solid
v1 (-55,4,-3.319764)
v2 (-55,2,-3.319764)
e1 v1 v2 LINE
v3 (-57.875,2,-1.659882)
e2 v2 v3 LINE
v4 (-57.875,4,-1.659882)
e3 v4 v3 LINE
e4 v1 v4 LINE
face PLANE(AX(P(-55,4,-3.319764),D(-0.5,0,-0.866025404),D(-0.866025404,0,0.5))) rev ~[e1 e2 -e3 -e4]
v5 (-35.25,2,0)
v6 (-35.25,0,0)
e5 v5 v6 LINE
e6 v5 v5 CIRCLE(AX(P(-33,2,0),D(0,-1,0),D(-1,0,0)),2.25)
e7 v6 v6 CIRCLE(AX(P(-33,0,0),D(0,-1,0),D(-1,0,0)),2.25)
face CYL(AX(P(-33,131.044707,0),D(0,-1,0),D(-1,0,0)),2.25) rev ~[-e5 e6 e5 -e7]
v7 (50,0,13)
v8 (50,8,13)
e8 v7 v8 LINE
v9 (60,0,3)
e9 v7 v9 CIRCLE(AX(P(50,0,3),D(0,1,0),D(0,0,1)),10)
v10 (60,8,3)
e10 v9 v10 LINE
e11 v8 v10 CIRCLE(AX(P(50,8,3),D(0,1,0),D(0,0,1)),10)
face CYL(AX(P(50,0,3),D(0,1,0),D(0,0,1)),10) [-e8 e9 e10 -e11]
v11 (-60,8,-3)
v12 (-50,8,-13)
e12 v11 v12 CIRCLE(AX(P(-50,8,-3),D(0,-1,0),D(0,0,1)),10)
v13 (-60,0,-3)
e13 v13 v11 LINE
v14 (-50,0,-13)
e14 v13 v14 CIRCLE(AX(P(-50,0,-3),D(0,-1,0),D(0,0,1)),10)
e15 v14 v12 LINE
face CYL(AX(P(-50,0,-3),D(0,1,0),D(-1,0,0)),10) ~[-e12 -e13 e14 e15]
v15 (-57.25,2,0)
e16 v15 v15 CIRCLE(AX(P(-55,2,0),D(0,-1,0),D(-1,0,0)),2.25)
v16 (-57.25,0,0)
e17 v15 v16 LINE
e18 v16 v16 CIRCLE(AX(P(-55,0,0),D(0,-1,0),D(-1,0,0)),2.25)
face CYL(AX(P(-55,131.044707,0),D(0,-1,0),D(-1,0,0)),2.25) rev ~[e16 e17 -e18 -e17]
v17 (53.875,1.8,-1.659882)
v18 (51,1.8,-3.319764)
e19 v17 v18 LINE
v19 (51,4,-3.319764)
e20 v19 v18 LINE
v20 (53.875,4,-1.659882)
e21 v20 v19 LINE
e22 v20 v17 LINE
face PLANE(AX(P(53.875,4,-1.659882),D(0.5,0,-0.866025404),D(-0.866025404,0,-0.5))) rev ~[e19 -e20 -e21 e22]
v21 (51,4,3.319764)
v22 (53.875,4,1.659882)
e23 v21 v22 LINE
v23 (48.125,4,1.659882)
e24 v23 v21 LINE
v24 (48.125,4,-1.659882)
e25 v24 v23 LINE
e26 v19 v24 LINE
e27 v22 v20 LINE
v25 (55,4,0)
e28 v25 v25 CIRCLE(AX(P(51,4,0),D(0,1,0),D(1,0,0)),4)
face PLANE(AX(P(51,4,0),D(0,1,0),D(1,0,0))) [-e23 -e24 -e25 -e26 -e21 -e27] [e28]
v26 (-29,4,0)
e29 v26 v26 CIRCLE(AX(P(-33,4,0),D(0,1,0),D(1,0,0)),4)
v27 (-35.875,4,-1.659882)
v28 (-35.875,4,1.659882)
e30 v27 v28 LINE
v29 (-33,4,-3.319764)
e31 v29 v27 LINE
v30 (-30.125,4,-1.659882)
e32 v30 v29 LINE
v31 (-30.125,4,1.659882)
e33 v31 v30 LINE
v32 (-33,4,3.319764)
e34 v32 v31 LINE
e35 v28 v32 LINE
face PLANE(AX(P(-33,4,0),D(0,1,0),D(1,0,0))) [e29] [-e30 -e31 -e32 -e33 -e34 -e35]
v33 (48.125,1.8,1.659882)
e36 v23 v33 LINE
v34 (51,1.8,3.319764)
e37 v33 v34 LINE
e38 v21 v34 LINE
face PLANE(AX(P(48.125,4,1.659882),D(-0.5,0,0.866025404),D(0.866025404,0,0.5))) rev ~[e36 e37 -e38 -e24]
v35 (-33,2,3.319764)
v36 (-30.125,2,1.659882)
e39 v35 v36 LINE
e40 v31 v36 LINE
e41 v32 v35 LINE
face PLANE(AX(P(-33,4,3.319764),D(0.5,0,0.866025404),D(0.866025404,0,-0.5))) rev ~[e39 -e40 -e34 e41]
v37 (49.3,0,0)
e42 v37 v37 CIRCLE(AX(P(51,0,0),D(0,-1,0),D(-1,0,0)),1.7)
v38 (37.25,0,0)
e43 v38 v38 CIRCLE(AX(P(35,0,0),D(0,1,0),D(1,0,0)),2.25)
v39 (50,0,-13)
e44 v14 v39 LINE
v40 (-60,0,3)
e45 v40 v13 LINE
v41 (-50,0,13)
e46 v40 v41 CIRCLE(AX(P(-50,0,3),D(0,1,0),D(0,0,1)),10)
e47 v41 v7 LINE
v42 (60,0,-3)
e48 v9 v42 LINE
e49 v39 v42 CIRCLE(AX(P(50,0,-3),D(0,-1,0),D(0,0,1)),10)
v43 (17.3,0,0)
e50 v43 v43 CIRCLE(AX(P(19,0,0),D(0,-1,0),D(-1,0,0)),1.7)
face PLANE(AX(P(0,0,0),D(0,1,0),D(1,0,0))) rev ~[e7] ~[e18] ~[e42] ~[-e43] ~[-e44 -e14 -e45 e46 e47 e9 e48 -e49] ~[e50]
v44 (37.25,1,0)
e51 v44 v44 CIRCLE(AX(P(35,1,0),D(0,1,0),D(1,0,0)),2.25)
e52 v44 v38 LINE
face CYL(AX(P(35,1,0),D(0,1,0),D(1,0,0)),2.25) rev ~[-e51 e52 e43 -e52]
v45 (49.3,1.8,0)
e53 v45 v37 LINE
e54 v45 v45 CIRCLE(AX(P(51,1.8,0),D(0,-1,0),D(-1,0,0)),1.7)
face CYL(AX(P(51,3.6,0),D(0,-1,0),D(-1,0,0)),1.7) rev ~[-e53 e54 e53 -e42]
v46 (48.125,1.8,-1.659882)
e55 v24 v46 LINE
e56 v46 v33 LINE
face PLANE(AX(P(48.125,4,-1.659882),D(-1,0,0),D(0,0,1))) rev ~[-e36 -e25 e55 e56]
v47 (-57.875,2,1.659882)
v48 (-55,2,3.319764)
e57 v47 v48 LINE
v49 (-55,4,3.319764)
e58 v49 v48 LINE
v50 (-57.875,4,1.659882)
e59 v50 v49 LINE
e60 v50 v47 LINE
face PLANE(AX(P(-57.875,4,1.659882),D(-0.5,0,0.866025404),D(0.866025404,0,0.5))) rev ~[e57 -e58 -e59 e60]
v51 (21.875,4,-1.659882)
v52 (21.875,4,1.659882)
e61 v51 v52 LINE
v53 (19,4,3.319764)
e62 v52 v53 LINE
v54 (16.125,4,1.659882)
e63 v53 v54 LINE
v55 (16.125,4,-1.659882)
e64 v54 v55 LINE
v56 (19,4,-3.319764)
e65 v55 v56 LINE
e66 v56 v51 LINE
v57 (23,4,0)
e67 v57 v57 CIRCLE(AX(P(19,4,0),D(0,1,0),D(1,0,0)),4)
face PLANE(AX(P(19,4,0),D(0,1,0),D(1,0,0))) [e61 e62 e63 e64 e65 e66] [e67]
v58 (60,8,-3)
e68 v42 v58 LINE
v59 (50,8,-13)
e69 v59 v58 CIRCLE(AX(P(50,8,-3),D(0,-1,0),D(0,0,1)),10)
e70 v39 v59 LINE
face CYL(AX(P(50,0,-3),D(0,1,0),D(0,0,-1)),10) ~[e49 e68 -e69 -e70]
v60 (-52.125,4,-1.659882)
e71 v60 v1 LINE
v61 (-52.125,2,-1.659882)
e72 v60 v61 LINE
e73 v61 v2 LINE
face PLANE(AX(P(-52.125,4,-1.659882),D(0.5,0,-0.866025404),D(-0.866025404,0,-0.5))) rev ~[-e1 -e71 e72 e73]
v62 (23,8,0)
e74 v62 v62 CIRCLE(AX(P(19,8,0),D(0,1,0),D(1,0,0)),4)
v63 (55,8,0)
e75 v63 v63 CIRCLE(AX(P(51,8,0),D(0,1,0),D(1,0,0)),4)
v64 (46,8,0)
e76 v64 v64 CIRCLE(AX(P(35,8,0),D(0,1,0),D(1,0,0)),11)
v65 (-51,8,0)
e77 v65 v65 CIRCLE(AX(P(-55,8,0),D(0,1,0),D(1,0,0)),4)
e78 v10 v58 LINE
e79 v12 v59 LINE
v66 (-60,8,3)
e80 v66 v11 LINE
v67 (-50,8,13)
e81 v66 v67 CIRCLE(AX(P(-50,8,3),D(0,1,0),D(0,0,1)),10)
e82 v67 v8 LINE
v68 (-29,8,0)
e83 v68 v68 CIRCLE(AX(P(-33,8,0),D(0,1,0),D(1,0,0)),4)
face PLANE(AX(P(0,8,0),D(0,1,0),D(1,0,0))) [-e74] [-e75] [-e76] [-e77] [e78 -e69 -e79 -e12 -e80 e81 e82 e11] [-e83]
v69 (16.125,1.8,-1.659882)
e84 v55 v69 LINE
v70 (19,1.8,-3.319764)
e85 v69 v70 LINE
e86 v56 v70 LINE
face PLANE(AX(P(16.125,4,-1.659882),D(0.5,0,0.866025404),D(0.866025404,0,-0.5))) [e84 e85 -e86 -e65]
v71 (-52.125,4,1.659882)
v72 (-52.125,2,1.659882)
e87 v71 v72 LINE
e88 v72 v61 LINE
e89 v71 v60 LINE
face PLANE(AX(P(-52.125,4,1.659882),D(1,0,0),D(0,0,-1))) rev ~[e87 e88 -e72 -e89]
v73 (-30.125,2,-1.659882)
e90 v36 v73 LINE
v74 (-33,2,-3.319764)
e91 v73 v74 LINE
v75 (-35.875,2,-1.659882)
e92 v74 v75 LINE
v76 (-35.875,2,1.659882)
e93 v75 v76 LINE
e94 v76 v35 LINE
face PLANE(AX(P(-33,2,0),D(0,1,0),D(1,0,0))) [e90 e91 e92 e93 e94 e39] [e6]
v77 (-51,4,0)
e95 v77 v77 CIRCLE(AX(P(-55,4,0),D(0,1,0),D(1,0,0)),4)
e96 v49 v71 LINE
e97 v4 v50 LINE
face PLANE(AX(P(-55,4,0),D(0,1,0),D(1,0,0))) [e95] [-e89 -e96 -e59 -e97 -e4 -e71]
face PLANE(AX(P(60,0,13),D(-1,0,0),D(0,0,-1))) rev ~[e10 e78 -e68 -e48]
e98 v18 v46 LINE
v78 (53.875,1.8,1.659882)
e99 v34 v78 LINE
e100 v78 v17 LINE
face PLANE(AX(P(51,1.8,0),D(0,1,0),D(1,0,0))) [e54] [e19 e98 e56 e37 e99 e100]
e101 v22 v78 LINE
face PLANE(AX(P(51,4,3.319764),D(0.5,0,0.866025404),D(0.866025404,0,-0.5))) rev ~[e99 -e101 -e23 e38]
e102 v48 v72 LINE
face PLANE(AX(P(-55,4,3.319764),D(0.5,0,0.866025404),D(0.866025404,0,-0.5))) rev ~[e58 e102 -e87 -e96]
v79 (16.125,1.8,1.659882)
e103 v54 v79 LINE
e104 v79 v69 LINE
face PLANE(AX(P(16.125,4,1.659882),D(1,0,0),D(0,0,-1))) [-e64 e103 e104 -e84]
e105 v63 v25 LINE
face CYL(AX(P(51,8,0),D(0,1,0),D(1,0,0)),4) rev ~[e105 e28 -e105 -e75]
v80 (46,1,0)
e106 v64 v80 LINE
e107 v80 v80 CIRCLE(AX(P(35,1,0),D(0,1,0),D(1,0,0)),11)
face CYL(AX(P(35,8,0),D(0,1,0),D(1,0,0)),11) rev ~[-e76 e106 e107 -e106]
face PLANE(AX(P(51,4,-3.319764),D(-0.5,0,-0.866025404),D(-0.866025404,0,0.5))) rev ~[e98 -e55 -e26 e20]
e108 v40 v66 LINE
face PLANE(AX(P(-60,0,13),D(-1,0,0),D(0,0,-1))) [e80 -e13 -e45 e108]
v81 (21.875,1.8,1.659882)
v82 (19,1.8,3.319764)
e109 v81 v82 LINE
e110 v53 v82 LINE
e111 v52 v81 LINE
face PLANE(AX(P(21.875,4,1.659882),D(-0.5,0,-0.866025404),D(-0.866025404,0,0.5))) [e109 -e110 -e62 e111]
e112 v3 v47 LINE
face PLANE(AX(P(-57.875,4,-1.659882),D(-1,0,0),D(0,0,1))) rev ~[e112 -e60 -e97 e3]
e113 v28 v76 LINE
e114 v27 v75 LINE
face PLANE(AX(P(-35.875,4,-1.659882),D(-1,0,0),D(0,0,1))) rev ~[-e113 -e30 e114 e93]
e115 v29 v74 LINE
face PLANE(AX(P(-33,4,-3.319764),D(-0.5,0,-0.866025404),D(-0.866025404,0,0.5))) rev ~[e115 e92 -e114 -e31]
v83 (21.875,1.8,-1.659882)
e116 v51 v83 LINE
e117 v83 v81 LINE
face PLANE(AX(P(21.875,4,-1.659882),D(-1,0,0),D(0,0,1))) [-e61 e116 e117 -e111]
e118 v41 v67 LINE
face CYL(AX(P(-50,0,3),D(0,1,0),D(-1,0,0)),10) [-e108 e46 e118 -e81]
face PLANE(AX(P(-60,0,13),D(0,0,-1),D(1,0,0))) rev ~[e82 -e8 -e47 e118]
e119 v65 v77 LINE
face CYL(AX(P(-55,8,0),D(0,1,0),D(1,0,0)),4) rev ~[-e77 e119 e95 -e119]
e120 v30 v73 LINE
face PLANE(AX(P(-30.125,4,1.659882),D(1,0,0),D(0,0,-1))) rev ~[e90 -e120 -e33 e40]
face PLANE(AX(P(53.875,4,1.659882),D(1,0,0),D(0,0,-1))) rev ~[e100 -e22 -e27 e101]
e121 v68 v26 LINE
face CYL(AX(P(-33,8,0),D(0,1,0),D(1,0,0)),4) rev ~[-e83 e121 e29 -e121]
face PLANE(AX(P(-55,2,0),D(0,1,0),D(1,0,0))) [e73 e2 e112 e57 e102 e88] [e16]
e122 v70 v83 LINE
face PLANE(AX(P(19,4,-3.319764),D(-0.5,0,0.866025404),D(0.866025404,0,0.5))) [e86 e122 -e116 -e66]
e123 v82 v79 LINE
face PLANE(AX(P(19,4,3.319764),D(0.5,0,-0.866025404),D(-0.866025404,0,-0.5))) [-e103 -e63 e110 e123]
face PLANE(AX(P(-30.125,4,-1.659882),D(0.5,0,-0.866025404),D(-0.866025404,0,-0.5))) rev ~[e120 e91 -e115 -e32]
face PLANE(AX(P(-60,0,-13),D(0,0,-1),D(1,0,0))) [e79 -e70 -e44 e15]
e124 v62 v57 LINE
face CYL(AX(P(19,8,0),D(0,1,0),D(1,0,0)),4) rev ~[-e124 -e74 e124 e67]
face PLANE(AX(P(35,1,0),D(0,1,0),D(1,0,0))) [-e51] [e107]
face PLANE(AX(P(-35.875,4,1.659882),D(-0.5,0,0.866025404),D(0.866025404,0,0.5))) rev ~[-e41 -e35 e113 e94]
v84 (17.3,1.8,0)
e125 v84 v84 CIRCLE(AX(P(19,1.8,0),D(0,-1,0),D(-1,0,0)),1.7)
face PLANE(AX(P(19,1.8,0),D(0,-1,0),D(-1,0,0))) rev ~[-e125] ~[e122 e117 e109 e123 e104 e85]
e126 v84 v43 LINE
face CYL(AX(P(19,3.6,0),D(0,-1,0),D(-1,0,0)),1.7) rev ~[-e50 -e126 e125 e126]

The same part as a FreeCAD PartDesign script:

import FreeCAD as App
import Part
import Sketcher
from FreeCAD import Vector
Q = App.Units.Quantity


def edges_at(feature, points):
    """Names of the edges that pass closest to the given points."""
    edges = feature.Shape.Edges
    near = lambda p: min(range(len(edges)), key=lambda i: edges[i].distToShape(Part.Vertex(*p))[0])
    return sorted({f"Edge{near(p) + 1}" for p in points})

doc = App.newDocument("Part")
body = doc.addObject("PartDesign::Body", "Body")

# Sketch on XZ plane
sketch1 = body.newObject("Sketcher::SketchObject", "Sketch")
sketch1.AttachmentSupport = (doc.getObject("XZ_Plane"), [""])
sketch1.MapMode = "FlatFace"
sketch1.addGeometry([
    Part.LineSegment(Vector(-60, -13, 0), Vector(-60, 13, 0)),
    Part.LineSegment(Vector(-60, 13, 0), Vector(60, 13, 0)),
    Part.LineSegment(Vector(60, 13, 0), Vector(60, -13, 0)),
    Part.LineSegment(Vector(60, -13, 0), Vector(-60, -13, 0)),
], False)
sketch1.addConstraint([
    Sketcher.Constraint("Coincident", 0, 2, 1, 1),
    Sketcher.Constraint("Coincident", 1, 2, 2, 1),
    Sketcher.Constraint("Coincident", 2, 2, 3, 1),
    Sketcher.Constraint("Coincident", 3, 2, 0, 1),
    Sketcher.Constraint("Vertical", 0),
    Sketcher.Constraint("Horizontal", 1),
    Sketcher.Constraint("Vertical", 2),
    Sketcher.Constraint("Horizontal", 3),
    Sketcher.Constraint("Symmetric", 0, 2, 2, 2, -1, 1),
    Sketcher.Constraint("DistanceX", 1, 1, 1, 2, Q("120 mm")),
    Sketcher.Constraint("DistanceY", 0, 1, 0, 2, Q("26 mm")),
])
pad1 = body.newObject("PartDesign::Pad", "Pad")
pad1.Profile = sketch1
pad1.Length = 8
pad1.Reversed = True

# Sketch on XZ plane
sketch2 = body.newObject("Sketcher::SketchObject", "Sketch001")
sketch2.AttachmentSupport = (doc.getObject("XZ_Plane"), [""])
sketch2.MapMode = "FlatFace"
sketch2.AttachmentOffset = App.Placement(Vector(0, 0, -8), App.Rotation())
sketch2.addGeometry(Part.Circle(Vector(35, 0, 0), Vector(0, 0, 1), 11), False)
sketch2.addConstraint([
    Sketcher.Constraint("PointOnObject", 0, 3, -1),
    Sketcher.Constraint("Diameter", 0, Q("22 mm")),
    Sketcher.Constraint("DistanceX", -1, 1, 0, 3, Q("35 mm")),
])
pocket1 = body.newObject("PartDesign::Pocket", "Pocket")
pocket1.Profile = sketch2
pocket1.Length = 7
pocket1.Reversed = True

# Sketch on XZ plane
sketch3 = body.newObject("Sketcher::SketchObject", "Sketch002")
sketch3.AttachmentSupport = (doc.getObject("XZ_Plane"), [""])
sketch3.MapMode = "FlatFace"
sketch3.AttachmentOffset = App.Placement(Vector(0, 0, -1), App.Rotation())
sketch3.addGeometry(Part.Circle(Vector(35, 0, 0), Vector(0, 0, 1), 2.25), False)
sketch3.addConstraint([
    Sketcher.Constraint("PointOnObject", 0, 3, -1),
    Sketcher.Constraint("Diameter", 0, Q("4.5 mm")),
    Sketcher.Constraint("DistanceX", -1, 1, 0, 3, Q("35 mm")),
])
pocket2 = body.newObject("PartDesign::Pocket", "Pocket001")
pocket2.Profile = sketch3
pocket2.Type = "ThroughAll"
pocket2.Reversed = True

# Sketch on XZ plane
sketch4 = body.newObject("Sketcher::SketchObject", "Sketch003")
sketch4.AttachmentSupport = (doc.getObject("XZ_Plane"), [""])
sketch4.MapMode = "FlatFace"
sketch4.AttachmentOffset = App.Placement(Vector(0, 0, -8), App.Rotation())
sketch4.addGeometry([
    Part.Circle(Vector(51, 0, 0), Vector(0, 0, 1), 4),
    Part.Circle(Vector(19, 0, 0), Vector(0, 0, 1), 4),
], False)
sketch4.addConstraint([
    Sketcher.Constraint("Equal", 0, 1),
    Sketcher.Constraint("PointOnObject", 0, 3, -1),
    Sketcher.Constraint("PointOnObject", 1, 3, -1),
    Sketcher.Constraint("Diameter", 0, Q("8 mm")),
    Sketcher.Constraint("DistanceX", -1, 1, 0, 3, Q("51 mm")),
    Sketcher.Constraint("DistanceX", -1, 1, 1, 3, Q("19 mm")),
])
pocket3 = body.newObject("PartDesign::Pocket", "Pocket002")
pocket3.Profile = sketch4
pocket3.Length = 4
pocket3.Reversed = True

# Sketch on XZ plane
sketch5 = body.newObject("Sketcher::SketchObject", "Sketch004")
sketch5.AttachmentSupport = (doc.getObject("XZ_Plane"), [""])
sketch5.MapMode = "FlatFace"
sketch5.AttachmentOffset = App.Placement(Vector(0, 0, -4), App.Rotation())
sketch5.addGeometry([
    Part.LineSegment(Vector(53.875, 1.659882, 0), Vector(53.875, -1.659882, 0)),  # 0
    Part.LineSegment(Vector(53.875, -1.659882, 0), Vector(51, -3.319764, 0)),  # 1
    Part.LineSegment(Vector(51, -3.319764, 0), Vector(48.125, -1.659882, 0)),  # 2
    Part.LineSegment(Vector(48.125, -1.659882, 0), Vector(48.125, 1.659882, 0)),  # 3
    Part.LineSegment(Vector(48.125, 1.659882, 0), Vector(51, 3.319764, 0)),  # 4
    Part.LineSegment(Vector(51, 3.319764, 0), Vector(53.875, 1.659882, 0)),  # 5
    Part.LineSegment(Vector(16.125, 1.659882, 0), Vector(19, 3.319764, 0)),  # 6
    Part.LineSegment(Vector(19, 3.319764, 0), Vector(21.875, 1.659882, 0)),  # 7
    Part.LineSegment(Vector(21.875, 1.659882, 0), Vector(21.875, -1.659882, 0)),  # 8
    Part.LineSegment(Vector(21.875, -1.659882, 0), Vector(19, -3.319764, 0)),  # 9
    Part.LineSegment(Vector(19, -3.319764, 0), Vector(16.125, -1.659882, 0)),  # 10
    Part.LineSegment(Vector(16.125, -1.659882, 0), Vector(16.125, 1.659882, 0)),  # 11
], False)
sketch5.addConstraint([
    Sketcher.Constraint("Coincident", 0, 2, 1, 1),
    Sketcher.Constraint("Coincident", 1, 2, 2, 1),
    Sketcher.Constraint("Coincident", 2, 2, 3, 1),
    Sketcher.Constraint("Coincident", 3, 2, 4, 1),
    Sketcher.Constraint("Coincident", 4, 2, 5, 1),
    Sketcher.Constraint("Coincident", 5, 2, 0, 1),
    Sketcher.Constraint("Coincident", 6, 2, 7, 1),
    Sketcher.Constraint("Coincident", 7, 2, 8, 1),
    Sketcher.Constraint("Coincident", 8, 2, 9, 1),
    Sketcher.Constraint("Coincident", 9, 2, 10, 1),
    Sketcher.Constraint("Coincident", 10, 2, 11, 1),
    Sketcher.Constraint("Coincident", 11, 2, 6, 1),
    Sketcher.Constraint("Vertical", 0),
    Sketcher.Constraint("Vertical", 3),
    Sketcher.Constraint("Vertical", 8),
    Sketcher.Constraint("Vertical", 11),
    Sketcher.Constraint("Symmetric", 1, 2, 4, 2, -1),
    Sketcher.Constraint("Symmetric", 6, 2, 9, 2, -1),
    Sketcher.Constraint("Parallel", 1, 4),
    Sketcher.Constraint("Parallel", 2, 5),
    Sketcher.Constraint("Parallel", 4, 6),
    Sketcher.Constraint("Parallel", 5, 7),
    Sketcher.Constraint("Parallel", 6, 9),
    Sketcher.Constraint("Parallel", 7, 10),
    Sketcher.Constraint("Horizontal", 0, 2, 2, 2),
    Sketcher.Constraint("Horizontal", 3, 2, 5, 2),
    Sketcher.Constraint("Horizontal", 4, 2, 6, 2),
    Sketcher.Constraint("Horizontal", 5, 2, 7, 2),
    Sketcher.Constraint("Horizontal", 8, 2, 10, 2),
    Sketcher.Constraint("Angle", 1, Q("-150 deg")),
    Sketcher.Constraint("DistanceX", -1, 1, 1, 2, Q("51 mm")),
    Sketcher.Constraint("DistanceX", -1, 1, 6, 2, Q("19 mm")),
    Sketcher.Constraint("DistanceX", 2, 2, 0, 2, Q("5.75 mm")),
    Sketcher.Constraint("DistanceY", 0, 2, 0, 1, Q("3.319764 mm")),
])
pocket4 = body.newObject("PartDesign::Pocket", "Pocket003")
pocket4.Profile = sketch5
pocket4.Length = 2.2
pocket4.Reversed = True

# Sketch on XZ plane
sketch6 = body.newObject("Sketcher::SketchObject", "Sketch005")
sketch6.AttachmentSupport = (doc.getObject("XZ_Plane"), [""])
sketch6.MapMode = "FlatFace"
sketch6.AttachmentOffset = App.Placement(Vector(0, 0, -1.8), App.Rotation())
sketch6.addGeometry([
    Part.Circle(Vector(51, 0, 0), Vector(0, 0, 1), 1.7),
    Part.Circle(Vector(19, 0, 0), Vector(0, 0, 1), 1.7),
], False)
sketch6.addConstraint([
    Sketcher.Constraint("Equal", 0, 1),
    Sketcher.Constraint("PointOnObject", 0, 3, -1),
    Sketcher.Constraint("PointOnObject", 1, 3, -1),
    Sketcher.Constraint("Diameter", 0, Q("3.4 mm")),
    Sketcher.Constraint("DistanceX", -1, 1, 0, 3, Q("51 mm")),
    Sketcher.Constraint("DistanceX", -1, 1, 1, 3, Q("19 mm")),
])
doc.recompute()
hole = body.newObject("PartDesign::Hole", "Hole")
hole.Profile = sketch6
hole.ThreadType = "None"
hole.Diameter = 3.4
hole.DepthType = "Dimension"
hole.Depth = 1.8
hole.DrillPoint = "Flat"
hole.Reversed = True

# Sketch on XZ plane
sketch7 = body.newObject("Sketcher::SketchObject", "Sketch006")
sketch7.AttachmentSupport = (doc.getObject("XZ_Plane"), [""])
sketch7.MapMode = "FlatFace"
sketch7.AttachmentOffset = App.Placement(Vector(0, 0, -8), App.Rotation())
sketch7.addGeometry([
    Part.Circle(Vector(-33, 0, 0), Vector(0, 0, 1), 2.25),
    Part.Circle(Vector(-55, 0, 0), Vector(0, 0, 1), 2.25),
], False)
sketch7.addConstraint([
    Sketcher.Constraint("Equal", 0, 1),
    Sketcher.Constraint("PointOnObject", 0, 3, -1),
    Sketcher.Constraint("PointOnObject", 1, 3, -1),
    Sketcher.Constraint("Diameter", 0, Q("4.5 mm")),
    Sketcher.Constraint("DistanceX", 0, 3, -1, 1, Q("33 mm")),
    Sketcher.Constraint("DistanceX", 1, 3, -1, 1, Q("55 mm")),
])
doc.recompute()
hole2 = body.newObject("PartDesign::Hole", "Hole001")
hole2.Profile = sketch7
hole2.ThreadType = "None"
hole2.Diameter = 4.5
hole2.DepthType = "ThroughAll"
hole2.Reversed = True

# Sketch on XZ plane
sketch8 = body.newObject("Sketcher::SketchObject", "Sketch007")
sketch8.AttachmentSupport = (doc.getObject("XZ_Plane"), [""])
sketch8.MapMode = "FlatFace"
sketch8.AttachmentOffset = App.Placement(Vector(0, 0, -8), App.Rotation())
sketch8.addGeometry([
    Part.Circle(Vector(-55, 0, 0), Vector(0, 0, 1), 4),
    Part.Circle(Vector(-33, 0, 0), Vector(0, 0, 1), 4),
], False)
sketch8.addConstraint([
    Sketcher.Constraint("Equal", 0, 1),
    Sketcher.Constraint("PointOnObject", 0, 3, -1),
    Sketcher.Constraint("PointOnObject", 1, 3, -1),
    Sketcher.Constraint("Diameter", 0, Q("8 mm")),
    Sketcher.Constraint("DistanceX", 0, 3, -1, 1, Q("55 mm")),
    Sketcher.Constraint("DistanceX", 1, 3, -1, 1, Q("33 mm")),
])
pocket5 = body.newObject("PartDesign::Pocket", "Pocket004")
pocket5.Profile = sketch8
pocket5.Length = 4
pocket5.Reversed = True

# Sketch on XZ plane
sketch9 = body.newObject("Sketcher::SketchObject", "Sketch008")
sketch9.AttachmentSupport = (doc.getObject("XZ_Plane"), [""])
sketch9.MapMode = "FlatFace"
sketch9.AttachmentOffset = App.Placement(Vector(0, 0, -4), App.Rotation())
sketch9.addGeometry([
    Part.LineSegment(Vector(-55, 3.319764, 0), Vector(-52.125, 1.659882, 0)),  # 0
    Part.LineSegment(Vector(-52.125, 1.659882, 0), Vector(-52.125, -1.659882, 0)),  # 1
    Part.LineSegment(Vector(-52.125, -1.659882, 0), Vector(-55, -3.319764, 0)),  # 2
    Part.LineSegment(Vector(-55, -3.319764, 0), Vector(-57.875, -1.659882, 0)),  # 3
    Part.LineSegment(Vector(-57.875, -1.659882, 0), Vector(-57.875, 1.659882, 0)),  # 4
    Part.LineSegment(Vector(-57.875, 1.659882, 0), Vector(-55, 3.319764, 0)),  # 5
    Part.LineSegment(Vector(-35.875, 1.659882, 0), Vector(-33, 3.319764, 0)),  # 6
    Part.LineSegment(Vector(-33, 3.319764, 0), Vector(-30.125, 1.659882, 0)),  # 7
    Part.LineSegment(Vector(-30.125, 1.659882, 0), Vector(-30.125, -1.659882, 0)),  # 8
    Part.LineSegment(Vector(-30.125, -1.659882, 0), Vector(-33, -3.319764, 0)),  # 9
    Part.LineSegment(Vector(-33, -3.319764, 0), Vector(-35.875, -1.659882, 0)),  # 10
    Part.LineSegment(Vector(-35.875, -1.659882, 0), Vector(-35.875, 1.659882, 0)),  # 11
], False)
sketch9.addConstraint([
    Sketcher.Constraint("Coincident", 0, 2, 1, 1),
    Sketcher.Constraint("Coincident", 1, 2, 2, 1),
    Sketcher.Constraint("Coincident", 2, 2, 3, 1),
    Sketcher.Constraint("Coincident", 3, 2, 4, 1),
    Sketcher.Constraint("Coincident", 4, 2, 5, 1),
    Sketcher.Constraint("Coincident", 5, 2, 0, 1),
    Sketcher.Constraint("Coincident", 6, 2, 7, 1),
    Sketcher.Constraint("Coincident", 7, 2, 8, 1),
    Sketcher.Constraint("Coincident", 8, 2, 9, 1),
    Sketcher.Constraint("Coincident", 9, 2, 10, 1),
    Sketcher.Constraint("Coincident", 10, 2, 11, 1),
    Sketcher.Constraint("Coincident", 11, 2, 6, 1),
    Sketcher.Constraint("Vertical", 1),
    Sketcher.Constraint("Vertical", 4),
    Sketcher.Constraint("Vertical", 8),
    Sketcher.Constraint("Vertical", 11),
    Sketcher.Constraint("Symmetric", 2, 2, 5, 2, -1),
    Sketcher.Constraint("Symmetric", 6, 2, 9, 2, -1),
    Sketcher.Constraint("Parallel", 0, 3),
    Sketcher.Constraint("Parallel", 2, 5),
    Sketcher.Constraint("Parallel", 5, 6),
    Sketcher.Constraint("Parallel", 3, 7),
    Sketcher.Constraint("Parallel", 6, 9),
    Sketcher.Constraint("Parallel", 7, 10),
    Sketcher.Constraint("Horizontal", 1, 2, 3, 2),
    Sketcher.Constraint("Horizontal", 0, 2, 4, 2),
    Sketcher.Constraint("Horizontal", 5, 2, 6, 2),
    Sketcher.Constraint("Horizontal", 4, 2, 7, 2),
    Sketcher.Constraint("Horizontal", 8, 2, 10, 2),
    Sketcher.Constraint("Angle", 0, Q("-30 deg")),
    Sketcher.Constraint("DistanceX", 2, 2, -1, 1, Q("55 mm")),
    Sketcher.Constraint("DistanceX", 6, 2, -1, 1, Q("33 mm")),
    Sketcher.Constraint("DistanceX", 3, 2, 1, 2, Q("5.75 mm")),
    Sketcher.Constraint("DistanceY", 1, 2, 1, 1, Q("3.319764 mm")),
])
pocket6 = body.newObject("PartDesign::Pocket", "Pocket005")
pocket6.Profile = sketch9
pocket6.Length = 2
pocket6.Reversed = True
doc.recompute()

fillet = body.newObject("PartDesign::Fillet", "Fillet")
fillet.Base = (pocket6, edges_at(pocket6, [
    (-60, 4, -13),
    (60, 4, -13),
    (60, 4, 13),
    (-60, 4, 13),
]))
fillet.Radius = 10

doc.recompute()
